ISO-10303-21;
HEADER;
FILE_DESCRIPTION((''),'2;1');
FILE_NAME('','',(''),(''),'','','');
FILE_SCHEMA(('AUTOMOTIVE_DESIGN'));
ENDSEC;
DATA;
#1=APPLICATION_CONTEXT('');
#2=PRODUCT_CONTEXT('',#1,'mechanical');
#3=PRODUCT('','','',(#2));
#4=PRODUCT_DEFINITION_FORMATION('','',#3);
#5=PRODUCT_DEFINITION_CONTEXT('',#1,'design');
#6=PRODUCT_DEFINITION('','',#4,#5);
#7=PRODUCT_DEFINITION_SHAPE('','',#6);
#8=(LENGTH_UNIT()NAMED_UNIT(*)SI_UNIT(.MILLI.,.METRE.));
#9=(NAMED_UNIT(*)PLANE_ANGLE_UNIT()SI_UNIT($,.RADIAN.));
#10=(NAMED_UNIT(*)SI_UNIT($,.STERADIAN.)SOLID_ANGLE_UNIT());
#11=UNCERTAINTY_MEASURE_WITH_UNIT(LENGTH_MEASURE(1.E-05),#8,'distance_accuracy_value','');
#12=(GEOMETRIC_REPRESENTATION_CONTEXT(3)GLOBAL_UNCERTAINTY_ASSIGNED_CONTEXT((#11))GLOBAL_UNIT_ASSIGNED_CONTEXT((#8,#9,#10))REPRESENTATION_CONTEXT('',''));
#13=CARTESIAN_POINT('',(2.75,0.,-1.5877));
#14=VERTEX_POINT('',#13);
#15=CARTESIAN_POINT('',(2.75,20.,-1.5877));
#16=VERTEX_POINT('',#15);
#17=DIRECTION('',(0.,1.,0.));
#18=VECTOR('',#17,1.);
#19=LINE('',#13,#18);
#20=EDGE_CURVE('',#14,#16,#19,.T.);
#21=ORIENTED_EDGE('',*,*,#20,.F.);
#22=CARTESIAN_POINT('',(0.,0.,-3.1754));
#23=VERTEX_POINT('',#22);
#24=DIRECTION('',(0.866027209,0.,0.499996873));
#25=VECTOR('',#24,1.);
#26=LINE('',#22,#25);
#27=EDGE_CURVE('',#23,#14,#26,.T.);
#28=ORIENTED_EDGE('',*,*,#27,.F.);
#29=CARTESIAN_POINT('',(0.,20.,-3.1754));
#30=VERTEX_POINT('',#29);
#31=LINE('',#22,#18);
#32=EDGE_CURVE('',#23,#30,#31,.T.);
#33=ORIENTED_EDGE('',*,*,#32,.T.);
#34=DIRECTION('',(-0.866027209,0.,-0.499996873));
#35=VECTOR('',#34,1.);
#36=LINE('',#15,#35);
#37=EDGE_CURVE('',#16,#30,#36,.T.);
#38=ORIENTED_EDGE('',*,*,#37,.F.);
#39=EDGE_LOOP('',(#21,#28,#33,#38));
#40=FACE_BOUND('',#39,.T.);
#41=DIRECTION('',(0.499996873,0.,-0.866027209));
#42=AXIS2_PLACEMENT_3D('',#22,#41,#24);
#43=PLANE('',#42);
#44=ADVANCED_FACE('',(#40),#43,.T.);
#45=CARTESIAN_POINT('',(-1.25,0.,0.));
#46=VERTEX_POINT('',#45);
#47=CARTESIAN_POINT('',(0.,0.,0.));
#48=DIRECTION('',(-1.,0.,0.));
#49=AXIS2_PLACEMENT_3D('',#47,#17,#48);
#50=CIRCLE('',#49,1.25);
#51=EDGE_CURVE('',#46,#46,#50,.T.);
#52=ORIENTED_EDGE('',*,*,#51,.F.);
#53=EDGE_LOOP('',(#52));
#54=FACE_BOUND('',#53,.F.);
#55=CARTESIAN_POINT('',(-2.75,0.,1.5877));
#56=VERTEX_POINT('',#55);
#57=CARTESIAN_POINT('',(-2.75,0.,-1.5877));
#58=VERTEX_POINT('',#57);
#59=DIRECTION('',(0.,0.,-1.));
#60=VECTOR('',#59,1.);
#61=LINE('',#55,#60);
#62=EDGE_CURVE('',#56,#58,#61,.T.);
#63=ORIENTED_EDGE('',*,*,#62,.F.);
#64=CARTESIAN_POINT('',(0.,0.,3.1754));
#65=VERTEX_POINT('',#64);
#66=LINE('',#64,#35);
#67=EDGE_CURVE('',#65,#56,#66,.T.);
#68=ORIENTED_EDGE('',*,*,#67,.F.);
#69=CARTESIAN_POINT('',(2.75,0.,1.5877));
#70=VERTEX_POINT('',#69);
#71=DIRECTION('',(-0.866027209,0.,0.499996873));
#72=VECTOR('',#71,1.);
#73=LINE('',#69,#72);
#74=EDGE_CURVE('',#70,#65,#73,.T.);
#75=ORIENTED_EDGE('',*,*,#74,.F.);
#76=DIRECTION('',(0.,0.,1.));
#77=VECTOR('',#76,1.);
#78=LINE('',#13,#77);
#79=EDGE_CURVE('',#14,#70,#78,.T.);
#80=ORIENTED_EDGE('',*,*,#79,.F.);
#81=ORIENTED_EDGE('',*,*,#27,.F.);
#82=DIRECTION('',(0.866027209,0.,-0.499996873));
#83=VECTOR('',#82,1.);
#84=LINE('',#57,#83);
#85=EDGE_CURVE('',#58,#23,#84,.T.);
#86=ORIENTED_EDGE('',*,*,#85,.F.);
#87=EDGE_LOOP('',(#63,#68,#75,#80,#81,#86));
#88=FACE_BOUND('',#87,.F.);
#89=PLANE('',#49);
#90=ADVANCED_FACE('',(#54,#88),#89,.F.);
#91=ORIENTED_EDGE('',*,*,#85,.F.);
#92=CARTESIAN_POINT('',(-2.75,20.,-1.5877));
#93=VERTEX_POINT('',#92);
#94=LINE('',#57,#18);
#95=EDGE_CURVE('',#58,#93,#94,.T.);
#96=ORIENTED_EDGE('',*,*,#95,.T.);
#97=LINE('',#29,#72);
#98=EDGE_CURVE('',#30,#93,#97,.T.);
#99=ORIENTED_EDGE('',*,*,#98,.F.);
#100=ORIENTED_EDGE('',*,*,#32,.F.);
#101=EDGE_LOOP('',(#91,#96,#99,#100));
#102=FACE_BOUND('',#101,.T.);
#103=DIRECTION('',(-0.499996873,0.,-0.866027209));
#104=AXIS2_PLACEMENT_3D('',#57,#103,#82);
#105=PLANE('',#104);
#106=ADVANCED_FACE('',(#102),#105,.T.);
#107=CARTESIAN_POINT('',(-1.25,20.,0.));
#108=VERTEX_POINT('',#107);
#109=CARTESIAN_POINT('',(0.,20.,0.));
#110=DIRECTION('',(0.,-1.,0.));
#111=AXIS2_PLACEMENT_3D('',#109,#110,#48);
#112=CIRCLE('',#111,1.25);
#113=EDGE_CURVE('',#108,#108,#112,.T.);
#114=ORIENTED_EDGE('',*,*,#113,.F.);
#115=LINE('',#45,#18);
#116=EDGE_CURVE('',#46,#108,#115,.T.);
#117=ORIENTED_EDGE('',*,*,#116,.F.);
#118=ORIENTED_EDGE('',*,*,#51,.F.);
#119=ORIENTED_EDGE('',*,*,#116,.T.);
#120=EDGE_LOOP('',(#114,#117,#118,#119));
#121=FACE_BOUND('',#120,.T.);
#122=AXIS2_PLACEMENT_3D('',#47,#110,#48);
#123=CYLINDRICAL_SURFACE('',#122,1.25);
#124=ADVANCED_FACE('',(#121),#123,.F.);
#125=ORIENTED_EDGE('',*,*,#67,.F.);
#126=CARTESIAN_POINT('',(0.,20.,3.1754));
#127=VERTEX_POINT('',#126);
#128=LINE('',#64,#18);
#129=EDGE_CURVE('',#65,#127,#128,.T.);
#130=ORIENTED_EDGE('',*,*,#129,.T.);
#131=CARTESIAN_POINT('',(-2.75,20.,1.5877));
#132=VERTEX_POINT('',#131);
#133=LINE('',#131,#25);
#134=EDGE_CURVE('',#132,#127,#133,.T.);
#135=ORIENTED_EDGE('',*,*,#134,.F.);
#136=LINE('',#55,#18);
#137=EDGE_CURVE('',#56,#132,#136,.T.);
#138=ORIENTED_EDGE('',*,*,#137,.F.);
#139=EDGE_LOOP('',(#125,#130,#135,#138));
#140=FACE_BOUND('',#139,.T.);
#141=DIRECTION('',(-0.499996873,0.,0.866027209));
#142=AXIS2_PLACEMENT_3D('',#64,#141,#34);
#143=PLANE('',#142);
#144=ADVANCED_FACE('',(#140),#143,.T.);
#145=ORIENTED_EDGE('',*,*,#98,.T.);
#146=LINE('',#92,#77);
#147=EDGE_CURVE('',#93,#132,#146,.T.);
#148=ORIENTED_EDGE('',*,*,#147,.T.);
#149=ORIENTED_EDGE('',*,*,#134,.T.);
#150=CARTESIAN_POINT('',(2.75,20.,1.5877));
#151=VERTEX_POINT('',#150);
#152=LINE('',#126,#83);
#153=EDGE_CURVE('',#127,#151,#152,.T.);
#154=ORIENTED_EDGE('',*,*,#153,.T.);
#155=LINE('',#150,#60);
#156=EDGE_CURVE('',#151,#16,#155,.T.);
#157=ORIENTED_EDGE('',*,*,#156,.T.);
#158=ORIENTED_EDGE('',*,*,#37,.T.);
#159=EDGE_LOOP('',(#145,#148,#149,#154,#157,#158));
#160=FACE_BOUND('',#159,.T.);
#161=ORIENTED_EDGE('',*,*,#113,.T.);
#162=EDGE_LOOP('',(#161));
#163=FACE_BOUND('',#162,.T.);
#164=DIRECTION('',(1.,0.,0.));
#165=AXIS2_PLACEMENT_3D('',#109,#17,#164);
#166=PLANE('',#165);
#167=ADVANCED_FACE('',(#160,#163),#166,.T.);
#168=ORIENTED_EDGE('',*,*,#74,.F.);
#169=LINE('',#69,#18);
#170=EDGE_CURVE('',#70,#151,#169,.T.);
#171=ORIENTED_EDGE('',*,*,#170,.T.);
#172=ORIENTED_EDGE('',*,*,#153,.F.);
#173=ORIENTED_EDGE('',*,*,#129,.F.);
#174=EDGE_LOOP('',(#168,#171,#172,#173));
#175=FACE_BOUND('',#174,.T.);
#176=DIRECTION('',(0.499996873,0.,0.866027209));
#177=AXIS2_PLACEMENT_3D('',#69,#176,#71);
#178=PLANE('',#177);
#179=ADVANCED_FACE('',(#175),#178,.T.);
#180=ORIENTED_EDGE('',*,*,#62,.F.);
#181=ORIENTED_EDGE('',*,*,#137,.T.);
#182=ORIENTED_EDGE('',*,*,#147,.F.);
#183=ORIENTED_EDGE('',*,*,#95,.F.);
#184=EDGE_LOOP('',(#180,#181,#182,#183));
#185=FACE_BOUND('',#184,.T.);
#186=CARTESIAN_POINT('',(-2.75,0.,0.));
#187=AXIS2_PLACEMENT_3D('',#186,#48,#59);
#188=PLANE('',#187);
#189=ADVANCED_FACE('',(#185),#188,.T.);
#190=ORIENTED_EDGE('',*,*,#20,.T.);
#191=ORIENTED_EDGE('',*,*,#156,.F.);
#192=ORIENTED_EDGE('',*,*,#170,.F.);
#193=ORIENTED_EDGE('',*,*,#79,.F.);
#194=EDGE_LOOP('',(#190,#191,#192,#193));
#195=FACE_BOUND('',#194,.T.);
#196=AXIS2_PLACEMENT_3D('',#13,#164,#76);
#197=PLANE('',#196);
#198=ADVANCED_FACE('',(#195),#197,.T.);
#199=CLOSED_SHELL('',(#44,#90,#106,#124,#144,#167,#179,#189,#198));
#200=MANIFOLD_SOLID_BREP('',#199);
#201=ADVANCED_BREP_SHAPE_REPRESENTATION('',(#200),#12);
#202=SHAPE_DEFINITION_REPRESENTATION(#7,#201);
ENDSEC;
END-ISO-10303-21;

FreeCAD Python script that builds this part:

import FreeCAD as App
import Part
import Sketcher
Q = App.Units.Quantity


def add_polygon(sketch, points):
    """Adds a closed chain of lines whose ends are joined by coincident constraints."""
    first, n = sketch.GeometryCount, len(points)
    for a, b in zip(points, points[1:] + points[:1]):
        sketch.addGeometry(Part.LineSegment(App.Vector(*a, 0), App.Vector(*b, 0)), False)
    for i in range(n):
        sketch.addConstraint(Sketcher.Constraint("Coincident", first + i, 2, first + (i + 1) % n, 1))

doc = App.newDocument("Part")
body = doc.addObject("PartDesign::Body", "Body")

# Sketch on XZ plane
sketch1 = body.newObject("Sketcher::SketchObject", "Sketch")
sketch1.AttachmentSupport = (doc.getObject("XZ_Plane"), [""])
sketch1.MapMode = "FlatFace"
add_polygon(sketch1, [(-2.8, -1.6), (-2.8, 1.6), (0, 3.2), (2.8, 1.6), (2.8, -1.6), (0, -3.2)])  # lines 0-5
sketch1.addGeometry(Part.Circle(App.Vector(0, 0, 0), App.Vector(0, 0, 1), 1.2), False)  # 6
sketch1.addConstraint(Sketcher.Constraint("Vertical", 0))
sketch1.addConstraint(Sketcher.Constraint("Vertical", 3))
sketch1.addConstraint(Sketcher.Constraint("Coincident", 6, 3, -1, 1))
sketch1.addConstraint(Sketcher.Constraint("Symmetric", 0, 2, 3, 2, -1, 1))
sketch1.addConstraint(Sketcher.Constraint("Symmetric", 1, 2, 4, 2, -1, 1))
sketch1.addConstraint(Sketcher.Constraint("PointOnObject", 1, 2, -2))
sketch1.addConstraint(Sketcher.Constraint("Parallel", 2, 5))
sketch1.addConstraint(Sketcher.Constraint("Horizontal", 0, 2, 2, 2))
sketch1.addConstraint(Sketcher.Constraint("Diameter", 6, Q("2.5 mm")))
sketch1.addConstraint(Sketcher.Constraint("DistanceX", 0, 2, 2, 2, Q("5.5 mm")))
sketch1.addConstraint(Sketcher.Constraint("Angle", 1, Q("29.9998 deg")))
sketch1.addConstraint(Sketcher.Constraint("DistanceY", 0, 1, 0, 2, Q("3.1754 mm")))
pad1 = body.newObject("PartDesign::Pad", "Pad")
pad1.Profile = sketch1
pad1.Length = 30
pad1.Reversed = True

# Sketch on XZ plane
sketch2 = body.newObject("Sketcher::SketchObject", "Sketch001")
sketch2.AttachmentSupport = (doc.getObject("XZ_Plane"), [""])
sketch2.MapMode = "FlatFace"
sketch2.AttachmentOffset = App.Placement(App.Vector(0, 0, -30), App.Rotation())
add_polygon(sketch2, [(-8, -6), (-8, 8), (8, 8), (8, -6)])  # lines 0-3
sketch2.addConstraint(Sketcher.Constraint("Vertical", 0))
sketch2.addConstraint(Sketcher.Constraint("Horizontal", 1))
sketch2.addConstraint(Sketcher.Constraint("Vertical", 2))
sketch2.addConstraint(Sketcher.Constraint("Horizontal", 3))
sketch2.addConstraint(Sketcher.Constraint("DistanceX", 1, 1, 1, 2, Q("15.5152 mm")))
sketch2.addConstraint(Sketcher.Constraint("DistanceY", 0, 1, 0, 2, Q("14.1047 mm")))
sketch2.addConstraint(Sketcher.Constraint("DistanceY", -1, 1, 0, 2, Q("8.221 mm")))
sketch2.addConstraint(Sketcher.Constraint("DistanceX", 0, 2, -1, 1, Q("7.5964 mm")))
pocket1 = body.newObject("PartDesign::Pocket", "Pocket")
pocket1.Profile = sketch2
pocket1.Length = 10
pocket1.Reversed = True

doc.recompute()
